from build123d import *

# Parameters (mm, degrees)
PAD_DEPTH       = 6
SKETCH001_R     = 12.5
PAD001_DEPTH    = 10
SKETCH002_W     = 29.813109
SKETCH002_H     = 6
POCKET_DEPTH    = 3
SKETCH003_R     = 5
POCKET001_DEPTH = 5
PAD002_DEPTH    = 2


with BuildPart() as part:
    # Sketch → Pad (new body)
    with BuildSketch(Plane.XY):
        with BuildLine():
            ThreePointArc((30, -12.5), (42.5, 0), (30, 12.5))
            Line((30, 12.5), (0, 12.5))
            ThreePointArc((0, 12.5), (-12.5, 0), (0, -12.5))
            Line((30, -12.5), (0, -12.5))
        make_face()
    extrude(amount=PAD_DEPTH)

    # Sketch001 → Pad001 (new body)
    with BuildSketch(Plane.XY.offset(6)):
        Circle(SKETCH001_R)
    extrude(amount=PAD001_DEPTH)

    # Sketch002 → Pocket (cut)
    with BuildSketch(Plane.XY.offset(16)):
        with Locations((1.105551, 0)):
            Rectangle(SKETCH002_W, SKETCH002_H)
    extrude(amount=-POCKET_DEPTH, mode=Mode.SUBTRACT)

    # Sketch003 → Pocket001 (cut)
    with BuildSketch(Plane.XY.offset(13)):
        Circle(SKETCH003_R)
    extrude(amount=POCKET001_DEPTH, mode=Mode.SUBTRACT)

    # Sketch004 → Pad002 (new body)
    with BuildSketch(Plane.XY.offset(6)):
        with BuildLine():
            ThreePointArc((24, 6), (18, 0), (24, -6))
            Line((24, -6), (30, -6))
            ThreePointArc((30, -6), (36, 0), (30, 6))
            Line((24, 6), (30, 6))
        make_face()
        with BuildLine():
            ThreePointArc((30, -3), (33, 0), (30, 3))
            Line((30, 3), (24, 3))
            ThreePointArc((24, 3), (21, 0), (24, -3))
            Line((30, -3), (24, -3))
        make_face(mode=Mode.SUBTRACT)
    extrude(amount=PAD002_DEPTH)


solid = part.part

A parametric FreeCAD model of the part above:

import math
import FreeCAD as App
import Part
import Sketcher
from FreeCAD import Vector
Q = App.Units.Quantity

doc = App.newDocument("Part")
body = doc.addObject("PartDesign::Body", "Body")

# Sketch on XY plane
sketch1 = body.newObject("Sketcher::SketchObject", "Sketch")
sketch1.AttachmentSupport = (doc.getObject("XY_Plane"), [""])
sketch1.MapMode = "FlatFace"
sketch1.addGeometry(Part.ArcOfCircle(Part.Circle(Vector(30, 0, 0), Vector(0, 0, 1), 12), math.radians(-90), math.radians(90)), False)
sketch1.addGeometry(Part.LineSegment(Vector(30, 12, 0), Vector(0, 12, 0)), False)
sketch1.addGeometry(Part.ArcOfCircle(Part.Circle(Vector(0, 0, 0), Vector(0, 0, 1), 12), math.radians(90), math.radians(270)), False)
sketch1.addGeometry(Part.LineSegment(Vector(0, -12, 0), Vector(30, -12, 0)), False)
sketch1.addConstraint(Sketcher.Constraint("Tangent", 0, 2, 1, 1))
sketch1.addConstraint(Sketcher.Constraint("Tangent", 1, 2, 2, 1))
sketch1.addConstraint(Sketcher.Constraint("Tangent", 2, 2, 3, 1))
sketch1.addConstraint(Sketcher.Constraint("Tangent", 3, 2, 0, 1))
sketch1.addConstraint(Sketcher.Constraint("Horizontal", 1))
sketch1.addConstraint(Sketcher.Constraint("Horizontal", 3))
sketch1.addConstraint(Sketcher.Constraint("Coincident", 2, 3, -1, 1))
sketch1.addConstraint(Sketcher.Constraint("Radius", 0, Q("12.5 mm")))
sketch1.addConstraint(Sketcher.Constraint("DistanceX", 1, 2, 1, 1, Q("30 mm")))
pad1 = body.newObject("PartDesign::Pad", "Pad")
pad1.Profile = sketch1
pad1.Length = 6

# Sketch on XY plane
sketch2 = body.newObject("Sketcher::SketchObject", "Sketch001")
sketch2.AttachmentSupport = (doc.getObject("XY_Plane"), [""])
sketch2.MapMode = "FlatFace"
sketch2.AttachmentOffset = App.Placement(Vector(0, 0, 6), App.Rotation())
sketch2.addGeometry(Part.Circle(Vector(0, 0, 0), Vector(0, 0, 1), 12), False)
sketch2.addConstraint(Sketcher.Constraint("Coincident", 0, 3, -1, 1))
sketch2.addConstraint(Sketcher.Constraint("Diameter", 0, Q("25 mm")))
pad2 = body.newObject("PartDesign::Pad", "Pad001")
pad2.Profile = sketch2
pad2.Length = 10

# Sketch on XY plane
sketch3 = body.newObject("Sketcher::SketchObject", "Sketch002")
sketch3.AttachmentSupport = (doc.getObject("XY_Plane"), [""])
sketch3.MapMode = "FlatFace"
sketch3.AttachmentOffset = App.Placement(Vector(0, 0, 16), App.Rotation())
sketch3.addGeometry(Part.LineSegment(Vector(-14, 3, 0), Vector(-14, -3, 0)), False)
sketch3.addGeometry(Part.LineSegment(Vector(-14, -3, 0), Vector(16, -3, 0)), False)
sketch3.addGeometry(Part.LineSegment(Vector(16, -3, 0), Vector(16, 3, 0)), False)
sketch3.addGeometry(Part.LineSegment(Vector(16, 3, 0), Vector(-14, 3, 0)), False)
sketch3.addConstraint(Sketcher.Constraint("Coincident", 0, 2, 1, 1))
sketch3.addConstraint(Sketcher.Constraint("Coincident", 1, 2, 2, 1))
sketch3.addConstraint(Sketcher.Constraint("Coincident", 2, 2, 3, 1))
sketch3.addConstraint(Sketcher.Constraint("Coincident", 3, 2, 0, 1))
sketch3.addConstraint(Sketcher.Constraint("Vertical", 0))
sketch3.addConstraint(Sketcher.Constraint("Horizontal", 1))
sketch3.addConstraint(Sketcher.Constraint("Vertical", 2))
sketch3.addConstraint(Sketcher.Constraint("Horizontal", 3))
sketch3.addConstraint(Sketcher.Constraint("DistanceY", 0, 2, 0, 1, Q("6 mm")))
sketch3.addConstraint(Sketcher.Constraint("DistanceY", 0, 2, -1, 1, Q("3 mm")))
sketch3.addConstraint(Sketcher.Constraint("DistanceX", 1, 1, 1, 2, Q("29.813109 mm")))
sketch3.addConstraint(Sketcher.Constraint("DistanceX", 0, 2, -1, 1, Q("13.801004 mm")))
pocket1 = body.newObject("PartDesign::Pocket", "Pocket")
pocket1.Profile = sketch3
pocket1.Length = 3

# Sketch on XY plane
sketch4 = body.newObject("Sketcher::SketchObject", "Sketch003")
sketch4.AttachmentSupport = (doc.getObject("XY_Plane"), [""])
sketch4.MapMode = "FlatFace"
sketch4.AttachmentOffset = App.Placement(Vector(0, 0, 13), App.Rotation())
sketch4.addGeometry(Part.Circle(Vector(0, 0, 0), Vector(0, 0, 1), 5), False)
sketch4.addConstraint(Sketcher.Constraint("Coincident", 0, 3, -1, 1))
sketch4.addConstraint(Sketcher.Constraint("Diameter", 0, Q("10 mm")))
pocket2 = body.newObject("PartDesign::Pocket", "Pocket001")
pocket2.Profile = sketch4
pocket2.Length = 5
pocket2.Reversed = True

# Sketch on XY plane
sketch5 = body.newObject("Sketcher::SketchObject", "Sketch004")
sketch5.AttachmentSupport = (doc.getObject("XY_Plane"), [""])
sketch5.MapMode = "FlatFace"
sketch5.AttachmentOffset = App.Placement(Vector(0, 0, 6), App.Rotation())
sketch5.addGeometry(Part.ArcOfCircle(Part.Circle(Vector(24, 0, 0), Vector(0, 0, 1), 6), math.radians(90), math.radians(270)), False)
sketch5.addGeometry(Part.LineSegment(Vector(24, -6, 0), Vector(30, -6, 0)), False)
sketch5.addGeometry(Part.ArcOfCircle(Part.Circle(Vector(30, 0, 0), Vector(0, 0, 1), 6), math.radians(-90), math.radians(90)), False)
sketch5.addGeometry(Part.LineSegment(Vector(30, 6, 0), Vector(24, 6, 0)), False)
sketch5.addGeometry(Part.ArcOfCircle(Part.Circle(Vector(30, 0, 0), Vector(0, 0, 1), 3), math.radians(-90), math.radians(90)), False)
sketch5.addGeometry(Part.LineSegment(Vector(30, -3, 0), Vector(24, -3, 0)), False)
sketch5.addGeometry(Part.ArcOfCircle(Part.Circle(Vector(24, 0, 0), Vector(0, 0, 1), 3), math.radians(90), math.radians(270)), False)
sketch5.addGeometry(Part.LineSegment(Vector(24, 3, 0), Vector(30, 3, 0)), False)
sketch5.addConstraint(Sketcher.Constraint("Tangent", 0, 2, 1, 1))
sketch5.addConstraint(Sketcher.Constraint("Tangent", 1, 2, 2, 1))
sketch5.addConstraint(Sketcher.Constraint("Tangent", 2, 2, 3, 1))
sketch5.addConstraint(Sketcher.Constraint("Tangent", 3, 2, 0, 1))
sketch5.addConstraint(Sketcher.Constraint("Tangent", 4, 1, 5, 1))
sketch5.addConstraint(Sketcher.Constraint("Tangent", 5, 2, 6, 2))
sketch5.addConstraint(Sketcher.Constraint("Tangent", 6, 1, 7, 1))
sketch5.addConstraint(Sketcher.Constraint("Tangent", 7, 2, 4, 2))
sketch5.addConstraint(Sketcher.Constraint("Horizontal", 1))
sketch5.addConstraint(Sketcher.Constraint("Horizontal", 3))
sketch5.addConstraint(Sketcher.Constraint("Horizontal", 5))
sketch5.addConstraint(Sketcher.Constraint("Horizontal", 7))
sketch5.addConstraint(Sketcher.Constraint("Coincident", 4, 3, 2, 3))
sketch5.addConstraint(Sketcher.Constraint("PointOnObject", 0, 3, -1))
sketch5.addConstraint(Sketcher.Constraint("Vertical", 6, 3, 0, 2))
sketch5.addConstraint(Sketcher.Constraint("Radius", 0, Q("6 mm")))
sketch5.addConstraint(Sketcher.Constraint("Radius", 4, Q("3 mm")))
sketch5.addConstraint(Sketcher.Constraint("DistanceX", 1, 1, 1, 2, Q("6 mm")))
sketch5.addConstraint(Sketcher.Constraint("DistanceX", -1, 1, 0, 3, Q("24 mm")))
pad3 = body.newObject("PartDesign::Pad", "Pad002")
pad3.Profile = sketch5
pad3.Length = 2

doc.recompute()
